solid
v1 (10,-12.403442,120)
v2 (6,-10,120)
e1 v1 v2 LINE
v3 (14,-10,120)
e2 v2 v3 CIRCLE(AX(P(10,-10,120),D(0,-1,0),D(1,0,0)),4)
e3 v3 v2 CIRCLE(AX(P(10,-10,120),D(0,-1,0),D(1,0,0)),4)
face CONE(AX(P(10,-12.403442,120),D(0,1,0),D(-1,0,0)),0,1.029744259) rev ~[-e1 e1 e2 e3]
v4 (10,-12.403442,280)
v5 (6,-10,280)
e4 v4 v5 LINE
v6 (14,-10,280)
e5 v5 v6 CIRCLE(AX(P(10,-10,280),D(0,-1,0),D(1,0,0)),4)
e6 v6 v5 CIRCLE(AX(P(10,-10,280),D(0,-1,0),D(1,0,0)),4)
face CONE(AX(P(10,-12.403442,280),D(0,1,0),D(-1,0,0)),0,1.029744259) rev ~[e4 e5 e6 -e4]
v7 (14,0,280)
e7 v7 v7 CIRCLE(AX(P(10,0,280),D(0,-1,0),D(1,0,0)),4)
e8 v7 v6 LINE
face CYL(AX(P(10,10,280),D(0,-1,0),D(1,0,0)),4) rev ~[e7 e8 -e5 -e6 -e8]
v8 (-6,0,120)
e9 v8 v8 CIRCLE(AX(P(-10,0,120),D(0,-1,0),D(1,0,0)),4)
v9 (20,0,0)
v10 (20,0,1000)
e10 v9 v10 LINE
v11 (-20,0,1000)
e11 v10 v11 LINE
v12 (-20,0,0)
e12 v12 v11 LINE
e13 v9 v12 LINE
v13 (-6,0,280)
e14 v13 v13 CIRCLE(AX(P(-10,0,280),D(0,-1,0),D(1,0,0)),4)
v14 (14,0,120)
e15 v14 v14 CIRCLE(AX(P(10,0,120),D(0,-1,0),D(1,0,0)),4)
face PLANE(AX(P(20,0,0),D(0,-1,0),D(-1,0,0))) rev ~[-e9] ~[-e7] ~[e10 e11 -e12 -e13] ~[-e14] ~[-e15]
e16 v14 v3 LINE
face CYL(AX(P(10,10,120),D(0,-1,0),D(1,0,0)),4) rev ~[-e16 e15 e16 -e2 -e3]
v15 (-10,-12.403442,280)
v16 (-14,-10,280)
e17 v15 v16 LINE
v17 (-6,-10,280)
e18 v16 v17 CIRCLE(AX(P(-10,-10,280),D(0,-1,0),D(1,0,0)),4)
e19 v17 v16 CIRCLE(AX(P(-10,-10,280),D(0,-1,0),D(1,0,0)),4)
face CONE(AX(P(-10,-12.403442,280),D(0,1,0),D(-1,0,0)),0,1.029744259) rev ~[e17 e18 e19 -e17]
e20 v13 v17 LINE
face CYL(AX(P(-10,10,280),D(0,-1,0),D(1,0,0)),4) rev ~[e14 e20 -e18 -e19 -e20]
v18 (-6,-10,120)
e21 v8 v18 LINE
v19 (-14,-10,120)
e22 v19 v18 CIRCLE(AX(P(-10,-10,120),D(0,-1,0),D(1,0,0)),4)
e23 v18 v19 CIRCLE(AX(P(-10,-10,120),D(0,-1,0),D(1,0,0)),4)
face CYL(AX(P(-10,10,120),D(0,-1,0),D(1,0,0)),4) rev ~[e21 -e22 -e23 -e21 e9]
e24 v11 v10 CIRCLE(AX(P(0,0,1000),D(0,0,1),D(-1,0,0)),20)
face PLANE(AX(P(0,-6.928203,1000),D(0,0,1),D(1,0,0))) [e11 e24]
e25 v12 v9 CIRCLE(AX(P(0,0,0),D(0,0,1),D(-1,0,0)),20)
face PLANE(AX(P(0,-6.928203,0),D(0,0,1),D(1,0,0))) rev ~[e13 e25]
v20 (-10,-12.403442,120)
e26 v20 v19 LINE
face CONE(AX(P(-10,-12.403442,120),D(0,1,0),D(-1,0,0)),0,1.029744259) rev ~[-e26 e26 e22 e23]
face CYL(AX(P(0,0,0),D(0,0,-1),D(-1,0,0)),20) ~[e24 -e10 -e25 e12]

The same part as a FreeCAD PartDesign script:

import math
import FreeCAD as App
import Part
import Sketcher
Q = App.Units.Quantity

doc = App.newDocument("Part")
body = doc.addObject("PartDesign::Body", "Body")

# Sketch on XY plane
sketch1 = body.newObject("Sketcher::SketchObject", "Sketch")
sketch1.AttachmentSupport = (doc.getObject("XY_Plane"), [""])
sketch1.MapMode = "FlatFace"
sketch1.addGeometry([
    Part.LineSegment(App.Vector(20, 0, 0), App.Vector(-20, 0, 0)),
    Part.ArcOfCircle(Part.Circle(App.Vector(0, 0, 0), App.Vector(0, 0, 1), 20), math.radians(180), math.radians(360)),
], False)
sketch1.addConstraint([
    Sketcher.Constraint("Coincident", 0, 1, 1, 2),
    Sketcher.Constraint("Coincident", 1, 1, 0, 2),
    Sketcher.Constraint("Horizontal", 0),
    Sketcher.Constraint("Coincident", 1, 3, -1, 1),
    Sketcher.Constraint("PointOnObject", 0, 1, -1),
    Sketcher.Constraint("Radius", 1, Q("20 mm")),
])
pad1 = body.newObject("PartDesign::Pad", "Pad")
pad1.Profile = sketch1
pad1.Length = 1000

# Sketch on XZ plane
sketch2 = body.newObject("Sketcher::SketchObject", "Sketch001")
sketch2.AttachmentSupport = (doc.getObject("XZ_Plane"), [""])
sketch2.MapMode = "FlatFace"
sketch2.addGeometry([
    Part.Circle(App.Vector(10, 280, 0), App.Vector(0, 0, 1), 4),
    Part.Circle(App.Vector(-10, 280, 0), App.Vector(0, 0, 1), 4),
    Part.Circle(App.Vector(10, 120, 0), App.Vector(0, 0, 1), 4),
    Part.Circle(App.Vector(-10, 120, 0), App.Vector(0, 0, 1), 4),
], False)
sketch2.addConstraint([
    Sketcher.Constraint("Equal", 0, 1),
    Sketcher.Constraint("Equal", 1, 2),
    Sketcher.Constraint("Equal", 2, 3),
    Sketcher.Constraint("Symmetric", 0, 3, 1, 3, -2),
    Sketcher.Constraint("Symmetric", 2, 3, 3, 3, -2),
    Sketcher.Constraint("Vertical", 0, 3, 2, 3),
    Sketcher.Constraint("Diameter", 0, Q("8 mm")),
    Sketcher.Constraint("DistanceX", -1, 1, 0, 3, Q("10 mm")),
    Sketcher.Constraint("DistanceY", -1, 1, 0, 3, Q("280 mm")),
    Sketcher.Constraint("DistanceY", -1, 1, 2, 3, Q("120 mm")),
])
doc.recompute()
hole = body.newObject("PartDesign::Hole", "Hole")
hole.Profile = sketch2
hole.ThreadType = "None"
hole.Diameter = 8
hole.DepthType = "Dimension"
hole.Depth = 10
hole.DrillPoint = "Angled"
hole.DrillPointAngle = 118
hole.Reversed = True

doc.recompute()
